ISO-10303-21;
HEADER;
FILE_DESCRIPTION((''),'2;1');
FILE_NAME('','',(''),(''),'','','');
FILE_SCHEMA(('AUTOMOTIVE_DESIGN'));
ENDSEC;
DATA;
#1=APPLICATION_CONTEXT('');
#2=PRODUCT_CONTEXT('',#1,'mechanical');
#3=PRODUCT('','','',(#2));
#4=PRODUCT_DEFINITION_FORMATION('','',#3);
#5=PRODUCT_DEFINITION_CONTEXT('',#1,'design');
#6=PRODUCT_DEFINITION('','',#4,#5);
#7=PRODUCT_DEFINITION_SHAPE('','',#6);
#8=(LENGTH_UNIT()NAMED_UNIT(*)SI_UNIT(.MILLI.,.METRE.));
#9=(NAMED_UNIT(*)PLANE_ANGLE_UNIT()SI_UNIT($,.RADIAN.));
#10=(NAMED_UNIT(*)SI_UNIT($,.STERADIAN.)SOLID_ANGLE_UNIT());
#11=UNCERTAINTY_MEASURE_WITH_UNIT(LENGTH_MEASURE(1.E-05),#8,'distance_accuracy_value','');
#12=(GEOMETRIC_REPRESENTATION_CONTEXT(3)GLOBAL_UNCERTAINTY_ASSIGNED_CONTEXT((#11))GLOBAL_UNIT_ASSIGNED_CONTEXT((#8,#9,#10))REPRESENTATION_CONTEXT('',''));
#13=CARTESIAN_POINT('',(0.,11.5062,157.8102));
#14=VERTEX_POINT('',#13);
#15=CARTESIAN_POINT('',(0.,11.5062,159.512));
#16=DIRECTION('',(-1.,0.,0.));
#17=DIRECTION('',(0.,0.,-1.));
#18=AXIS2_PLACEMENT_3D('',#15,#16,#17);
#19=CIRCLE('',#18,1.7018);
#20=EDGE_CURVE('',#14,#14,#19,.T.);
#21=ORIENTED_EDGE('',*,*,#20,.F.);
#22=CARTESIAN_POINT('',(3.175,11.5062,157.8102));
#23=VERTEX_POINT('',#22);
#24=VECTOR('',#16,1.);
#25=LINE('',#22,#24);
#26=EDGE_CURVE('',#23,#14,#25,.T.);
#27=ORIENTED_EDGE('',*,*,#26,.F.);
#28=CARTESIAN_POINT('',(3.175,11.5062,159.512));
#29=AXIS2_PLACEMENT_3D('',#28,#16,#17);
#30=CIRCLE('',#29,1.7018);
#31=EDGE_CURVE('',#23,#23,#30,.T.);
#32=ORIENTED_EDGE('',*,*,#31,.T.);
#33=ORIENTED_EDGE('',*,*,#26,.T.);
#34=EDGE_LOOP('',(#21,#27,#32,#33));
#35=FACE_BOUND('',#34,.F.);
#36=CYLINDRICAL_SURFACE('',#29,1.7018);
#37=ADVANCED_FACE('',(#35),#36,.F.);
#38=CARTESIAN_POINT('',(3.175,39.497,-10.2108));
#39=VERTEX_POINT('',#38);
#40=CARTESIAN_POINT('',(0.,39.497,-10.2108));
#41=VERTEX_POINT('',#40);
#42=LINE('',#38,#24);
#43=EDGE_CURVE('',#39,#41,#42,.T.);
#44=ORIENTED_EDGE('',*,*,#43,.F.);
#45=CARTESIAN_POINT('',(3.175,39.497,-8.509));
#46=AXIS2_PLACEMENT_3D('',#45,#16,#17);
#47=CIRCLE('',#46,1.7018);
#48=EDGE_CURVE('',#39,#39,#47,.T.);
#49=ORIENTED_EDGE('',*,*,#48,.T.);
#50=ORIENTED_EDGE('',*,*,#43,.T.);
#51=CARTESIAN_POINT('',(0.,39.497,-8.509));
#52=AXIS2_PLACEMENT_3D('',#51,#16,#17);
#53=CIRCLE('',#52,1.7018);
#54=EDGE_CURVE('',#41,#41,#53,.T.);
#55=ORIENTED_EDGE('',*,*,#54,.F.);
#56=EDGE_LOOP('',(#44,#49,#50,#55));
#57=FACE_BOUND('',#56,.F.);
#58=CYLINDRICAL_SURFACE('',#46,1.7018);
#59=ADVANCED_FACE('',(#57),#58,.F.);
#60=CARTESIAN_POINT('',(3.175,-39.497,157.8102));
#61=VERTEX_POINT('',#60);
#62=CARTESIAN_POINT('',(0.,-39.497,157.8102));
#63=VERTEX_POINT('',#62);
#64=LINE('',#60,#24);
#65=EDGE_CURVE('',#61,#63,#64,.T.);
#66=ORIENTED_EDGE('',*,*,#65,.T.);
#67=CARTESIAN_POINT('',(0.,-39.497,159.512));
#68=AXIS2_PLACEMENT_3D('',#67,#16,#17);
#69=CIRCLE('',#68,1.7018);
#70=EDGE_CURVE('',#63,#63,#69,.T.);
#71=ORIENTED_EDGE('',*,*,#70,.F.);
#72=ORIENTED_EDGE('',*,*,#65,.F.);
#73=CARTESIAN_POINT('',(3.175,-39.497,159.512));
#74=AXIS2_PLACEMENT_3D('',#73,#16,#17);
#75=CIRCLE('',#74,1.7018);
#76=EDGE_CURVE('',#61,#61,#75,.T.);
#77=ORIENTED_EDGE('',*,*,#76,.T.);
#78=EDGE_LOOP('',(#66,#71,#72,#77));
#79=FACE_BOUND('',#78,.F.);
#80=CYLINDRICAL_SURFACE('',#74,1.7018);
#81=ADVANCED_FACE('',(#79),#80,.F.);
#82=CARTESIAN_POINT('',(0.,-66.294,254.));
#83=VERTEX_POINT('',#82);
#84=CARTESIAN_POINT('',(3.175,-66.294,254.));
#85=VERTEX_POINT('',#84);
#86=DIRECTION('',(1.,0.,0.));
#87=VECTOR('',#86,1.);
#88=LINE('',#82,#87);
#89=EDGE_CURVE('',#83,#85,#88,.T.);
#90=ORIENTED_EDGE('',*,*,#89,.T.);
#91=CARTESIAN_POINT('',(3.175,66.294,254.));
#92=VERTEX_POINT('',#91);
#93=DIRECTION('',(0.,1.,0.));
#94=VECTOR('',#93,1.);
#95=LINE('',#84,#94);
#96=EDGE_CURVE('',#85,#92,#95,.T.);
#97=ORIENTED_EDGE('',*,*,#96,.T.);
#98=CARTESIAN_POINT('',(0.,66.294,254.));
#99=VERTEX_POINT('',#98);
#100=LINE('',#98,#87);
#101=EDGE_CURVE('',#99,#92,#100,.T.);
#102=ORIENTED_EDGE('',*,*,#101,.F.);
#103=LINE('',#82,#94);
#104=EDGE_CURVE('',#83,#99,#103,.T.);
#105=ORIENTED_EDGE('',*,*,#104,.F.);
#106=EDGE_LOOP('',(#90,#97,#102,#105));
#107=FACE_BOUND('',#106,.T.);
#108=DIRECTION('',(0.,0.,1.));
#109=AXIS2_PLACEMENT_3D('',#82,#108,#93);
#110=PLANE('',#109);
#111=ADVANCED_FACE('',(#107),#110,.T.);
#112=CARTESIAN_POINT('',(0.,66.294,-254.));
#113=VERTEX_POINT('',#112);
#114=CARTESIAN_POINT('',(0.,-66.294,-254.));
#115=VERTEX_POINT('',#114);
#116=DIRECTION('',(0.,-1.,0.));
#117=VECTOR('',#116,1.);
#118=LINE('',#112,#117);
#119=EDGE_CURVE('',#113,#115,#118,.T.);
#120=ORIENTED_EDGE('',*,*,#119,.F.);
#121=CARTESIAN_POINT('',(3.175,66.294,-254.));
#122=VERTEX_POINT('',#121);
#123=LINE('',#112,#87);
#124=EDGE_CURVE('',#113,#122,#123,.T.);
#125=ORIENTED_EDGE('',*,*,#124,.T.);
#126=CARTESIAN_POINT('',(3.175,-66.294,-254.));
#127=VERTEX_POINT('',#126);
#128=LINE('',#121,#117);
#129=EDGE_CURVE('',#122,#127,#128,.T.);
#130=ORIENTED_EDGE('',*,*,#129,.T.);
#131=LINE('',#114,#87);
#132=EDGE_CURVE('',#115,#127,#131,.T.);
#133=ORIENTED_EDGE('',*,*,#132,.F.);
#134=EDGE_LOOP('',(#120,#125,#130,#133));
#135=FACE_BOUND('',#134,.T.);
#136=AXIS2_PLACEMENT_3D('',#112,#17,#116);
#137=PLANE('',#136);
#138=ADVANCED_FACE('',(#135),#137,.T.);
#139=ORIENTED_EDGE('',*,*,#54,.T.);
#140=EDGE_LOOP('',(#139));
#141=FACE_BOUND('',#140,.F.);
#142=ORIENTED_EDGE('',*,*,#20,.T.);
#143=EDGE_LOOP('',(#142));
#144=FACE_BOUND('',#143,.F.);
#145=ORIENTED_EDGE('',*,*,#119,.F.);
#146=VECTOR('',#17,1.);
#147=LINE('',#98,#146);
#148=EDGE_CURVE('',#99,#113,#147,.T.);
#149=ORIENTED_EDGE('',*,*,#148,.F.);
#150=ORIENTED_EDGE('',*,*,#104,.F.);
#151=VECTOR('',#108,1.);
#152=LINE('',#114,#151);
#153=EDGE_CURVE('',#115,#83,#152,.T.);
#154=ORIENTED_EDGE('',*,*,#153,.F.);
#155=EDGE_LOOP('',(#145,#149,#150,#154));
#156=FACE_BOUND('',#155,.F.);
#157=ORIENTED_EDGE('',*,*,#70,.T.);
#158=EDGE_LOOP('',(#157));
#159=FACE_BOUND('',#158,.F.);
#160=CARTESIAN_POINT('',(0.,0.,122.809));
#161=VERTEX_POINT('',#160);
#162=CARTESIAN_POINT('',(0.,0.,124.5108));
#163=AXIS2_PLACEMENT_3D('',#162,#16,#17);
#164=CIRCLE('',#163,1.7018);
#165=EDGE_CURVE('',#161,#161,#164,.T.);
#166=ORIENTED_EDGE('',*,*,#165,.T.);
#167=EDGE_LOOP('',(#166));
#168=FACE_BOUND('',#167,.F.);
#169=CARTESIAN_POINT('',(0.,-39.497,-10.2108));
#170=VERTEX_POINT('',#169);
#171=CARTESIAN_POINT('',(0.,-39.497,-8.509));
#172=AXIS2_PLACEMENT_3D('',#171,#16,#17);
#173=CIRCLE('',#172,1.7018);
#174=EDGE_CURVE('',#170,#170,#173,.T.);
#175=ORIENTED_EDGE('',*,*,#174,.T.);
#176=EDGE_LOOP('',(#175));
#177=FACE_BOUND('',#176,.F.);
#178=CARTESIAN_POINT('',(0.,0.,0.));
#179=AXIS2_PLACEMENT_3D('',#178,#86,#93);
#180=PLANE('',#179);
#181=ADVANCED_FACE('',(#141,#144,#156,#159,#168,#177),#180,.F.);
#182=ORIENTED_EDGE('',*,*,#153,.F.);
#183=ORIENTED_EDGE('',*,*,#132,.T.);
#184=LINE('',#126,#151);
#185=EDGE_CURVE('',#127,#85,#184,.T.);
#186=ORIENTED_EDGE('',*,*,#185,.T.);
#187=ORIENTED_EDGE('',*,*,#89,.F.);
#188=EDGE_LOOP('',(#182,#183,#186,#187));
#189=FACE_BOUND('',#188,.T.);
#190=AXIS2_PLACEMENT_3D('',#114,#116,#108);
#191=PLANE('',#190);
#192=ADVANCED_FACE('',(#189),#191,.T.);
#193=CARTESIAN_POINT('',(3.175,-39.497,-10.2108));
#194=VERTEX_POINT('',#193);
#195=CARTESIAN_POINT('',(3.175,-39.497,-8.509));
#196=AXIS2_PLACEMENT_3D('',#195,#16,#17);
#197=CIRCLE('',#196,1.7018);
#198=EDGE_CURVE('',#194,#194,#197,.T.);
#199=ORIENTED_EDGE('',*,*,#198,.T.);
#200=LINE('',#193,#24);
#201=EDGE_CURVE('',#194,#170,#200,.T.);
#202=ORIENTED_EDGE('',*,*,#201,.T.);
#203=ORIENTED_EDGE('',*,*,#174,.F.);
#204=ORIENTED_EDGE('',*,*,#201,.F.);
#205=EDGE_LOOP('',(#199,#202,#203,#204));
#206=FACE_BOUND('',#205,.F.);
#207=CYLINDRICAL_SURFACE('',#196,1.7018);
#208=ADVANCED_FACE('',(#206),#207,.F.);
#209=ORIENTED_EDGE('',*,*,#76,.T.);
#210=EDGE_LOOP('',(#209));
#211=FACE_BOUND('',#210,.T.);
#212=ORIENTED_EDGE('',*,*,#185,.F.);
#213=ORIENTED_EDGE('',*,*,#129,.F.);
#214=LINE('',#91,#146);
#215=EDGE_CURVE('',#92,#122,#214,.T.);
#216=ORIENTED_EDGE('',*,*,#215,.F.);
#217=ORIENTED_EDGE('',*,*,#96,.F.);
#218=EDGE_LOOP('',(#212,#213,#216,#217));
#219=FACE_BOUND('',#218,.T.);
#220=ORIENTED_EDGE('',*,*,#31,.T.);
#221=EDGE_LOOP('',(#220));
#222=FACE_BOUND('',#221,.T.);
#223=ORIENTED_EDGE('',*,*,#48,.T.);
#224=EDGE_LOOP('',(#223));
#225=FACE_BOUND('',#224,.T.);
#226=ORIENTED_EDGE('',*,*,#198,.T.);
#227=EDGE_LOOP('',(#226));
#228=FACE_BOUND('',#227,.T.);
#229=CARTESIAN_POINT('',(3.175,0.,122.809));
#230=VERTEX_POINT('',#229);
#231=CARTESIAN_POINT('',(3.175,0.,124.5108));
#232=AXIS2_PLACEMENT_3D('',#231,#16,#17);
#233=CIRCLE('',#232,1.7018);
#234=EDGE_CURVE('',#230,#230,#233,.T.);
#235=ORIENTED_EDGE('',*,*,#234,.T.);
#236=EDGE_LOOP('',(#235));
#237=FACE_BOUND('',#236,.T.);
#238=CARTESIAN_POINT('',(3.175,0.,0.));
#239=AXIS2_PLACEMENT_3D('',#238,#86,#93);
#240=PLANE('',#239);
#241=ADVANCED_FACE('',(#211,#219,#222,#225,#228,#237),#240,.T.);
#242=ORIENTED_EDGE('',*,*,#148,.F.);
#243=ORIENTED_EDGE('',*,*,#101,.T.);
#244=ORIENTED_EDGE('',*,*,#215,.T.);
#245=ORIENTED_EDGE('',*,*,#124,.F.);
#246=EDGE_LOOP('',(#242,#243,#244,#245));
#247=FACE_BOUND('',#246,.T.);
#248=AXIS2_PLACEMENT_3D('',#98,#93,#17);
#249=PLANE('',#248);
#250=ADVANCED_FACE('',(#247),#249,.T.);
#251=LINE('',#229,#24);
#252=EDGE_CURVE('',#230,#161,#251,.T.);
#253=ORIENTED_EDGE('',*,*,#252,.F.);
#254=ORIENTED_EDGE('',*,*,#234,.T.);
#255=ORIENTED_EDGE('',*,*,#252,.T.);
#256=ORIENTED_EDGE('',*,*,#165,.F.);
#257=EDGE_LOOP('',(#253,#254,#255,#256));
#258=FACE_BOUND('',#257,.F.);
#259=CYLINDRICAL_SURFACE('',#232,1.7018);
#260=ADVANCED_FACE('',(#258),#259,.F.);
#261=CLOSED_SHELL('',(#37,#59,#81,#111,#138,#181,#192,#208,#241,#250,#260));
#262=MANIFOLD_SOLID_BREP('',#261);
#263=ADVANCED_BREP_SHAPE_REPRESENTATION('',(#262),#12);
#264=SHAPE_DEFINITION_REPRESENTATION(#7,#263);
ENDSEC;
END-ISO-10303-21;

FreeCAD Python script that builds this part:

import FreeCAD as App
import Part
import Sketcher
from FreeCAD import Vector
Q = App.Units.Quantity

doc = App.newDocument("Part")
params = doc.addObject("Spreadsheet::Sheet", "Params")
for row, (alias, value) in enumerate([
    ("sketch1_height", "20 in"),
    ("sketch1_width", "5.22 in"),
    ("pad1_length", "0.125 in"),
    ("sketch2_diameter", "0.134 in"),
    ("hole_diameter", "0.134 in"),
], start=1):
    params.set(f"A{row}", alias)
    params.set(f"B{row}", "=" + value)
    params.setAlias(f"B{row}", alias)

body = doc.addObject("PartDesign::Body", "Body")

# Sketch on YZ plane
sketch1 = doc.addObject("Sketcher::SketchObject", "Sketch")
body.addObject(sketch1)
sketch1.AttachmentSupport = (doc.YZ_Plane, [""])
sketch1.MapMode = "FlatFace"
sketch1.addGeometry(Part.LineSegment(Vector(66, 254, 0), Vector(-66, 254, 0)), False)
sketch1.addGeometry(Part.LineSegment(Vector(-66, 254, 0), Vector(-66, -254, 0)), False)
sketch1.addGeometry(Part.LineSegment(Vector(-66, -254, 0), Vector(66, -254, 0)), False)
sketch1.addGeometry(Part.LineSegment(Vector(66, -254, 0), Vector(66, 254, 0)), False)
sketch1.addConstraint(Sketcher.Constraint("Coincident", 0, 2, 1, 1))
sketch1.addConstraint(Sketcher.Constraint("Coincident", 1, 2, 2, 1))
sketch1.addConstraint(Sketcher.Constraint("Coincident", 2, 2, 3, 1))
sketch1.addConstraint(Sketcher.Constraint("Coincident", 3, 2, 0, 1))
sketch1.addConstraint(Sketcher.Constraint("Horizontal", 0))
sketch1.addConstraint(Sketcher.Constraint("Vertical", 1))
sketch1.addConstraint(Sketcher.Constraint("Horizontal", 2))
sketch1.addConstraint(Sketcher.Constraint("Vertical", 3))
sketch1.addConstraint(Sketcher.Constraint("Symmetric", 0, 2, 2, 2, -1, 1))
sketch1.addConstraint(Sketcher.Constraint("DistanceY", 1, 2, 1, 1, Q("20 in")))
sketch1.addConstraint(Sketcher.Constraint("DistanceX", 0, 2, 0, 1, Q("5.22 in")))
sketch1.setExpression("Constraints[9]", "Params.sketch1_height")
sketch1.setExpression("Constraints[10]", "Params.sketch1_width")
pad1 = doc.addObject("PartDesign::Pad", "Pad")
body.addObject(pad1)
pad1.Profile = sketch1
pad1.setExpression("Length", "Params.pad1_length")

# Sketch on YZ plane
sketch2 = doc.addObject("Sketcher::SketchObject", "Sketch001")
body.addObject(sketch2)
sketch2.AttachmentSupport = (doc.YZ_Plane, [""])
sketch2.MapMode = "FlatFace"
sketch2.AttachmentOffset = App.Placement(Vector(0, 0, 0.125 * 25.4), App.Rotation())
sketch2.addGeometry(Part.Circle(Vector(11.5, 159.5, 0), Vector(0, 0, 1), 1.7), False)
sketch2.addGeometry(Part.Circle(Vector(-39.5, 159.5, 0), Vector(0, 0, 1), 1.7), False)
sketch2.addGeometry(Part.Circle(Vector(0, 124.5, 0), Vector(0, 0, 1), 1.7), False)
sketch2.addGeometry(Part.Circle(Vector(39.5, -8.5, 0), Vector(0, 0, 1), 1.7), False)
sketch2.addGeometry(Part.Circle(Vector(-39.5, -8.5, 0), Vector(0, 0, 1), 1.7), False)
sketch2.addConstraint(Sketcher.Constraint("Equal", 0, 1))
sketch2.addConstraint(Sketcher.Constraint("Equal", 1, 2))
sketch2.addConstraint(Sketcher.Constraint("Equal", 2, 3))
sketch2.addConstraint(Sketcher.Constraint("Equal", 3, 4))
sketch2.addConstraint(Sketcher.Constraint("Symmetric", 3, 3, 4, 3, -2))
sketch2.addConstraint(Sketcher.Constraint("PointOnObject", 2, 3, -2))
sketch2.addConstraint(Sketcher.Constraint("Horizontal", 0, 3, 1, 3))
sketch2.addConstraint(Sketcher.Constraint("Vertical", 1, 3, 4, 3))
sketch2.addConstraint(Sketcher.Constraint("Diameter", 0, Q("0.134 in")))
sketch2.addConstraint(Sketcher.Constraint("DistanceY", -1, 1, 0, 3, Q("6.28 in")))
sketch2.addConstraint(Sketcher.Constraint("DistanceX", 1, 3, 3, 3, Q("3.11 in")))
sketch2.addConstraint(Sketcher.Constraint("DistanceX", -1, 1, 0, 3, Q("0.453 in")))
sketch2.addConstraint(Sketcher.Constraint("DistanceY", -1, 1, 2, 3, Q("4.902 in")))
sketch2.addConstraint(Sketcher.Constraint("DistanceY", 3, 3, -1, 1, Q("0.335 in")))
sketch2.setExpression("Constraints[8]", "Params.sketch2_diameter")
doc.recompute()
hole = doc.addObject("PartDesign::Hole", "Hole")
body.addObject(hole)
hole.Profile = sketch2
hole.ThreadType = "None"
hole.setExpression("Diameter", "Params.hole_diameter")
hole.DepthType = "ThroughAll"

doc.recompute()
